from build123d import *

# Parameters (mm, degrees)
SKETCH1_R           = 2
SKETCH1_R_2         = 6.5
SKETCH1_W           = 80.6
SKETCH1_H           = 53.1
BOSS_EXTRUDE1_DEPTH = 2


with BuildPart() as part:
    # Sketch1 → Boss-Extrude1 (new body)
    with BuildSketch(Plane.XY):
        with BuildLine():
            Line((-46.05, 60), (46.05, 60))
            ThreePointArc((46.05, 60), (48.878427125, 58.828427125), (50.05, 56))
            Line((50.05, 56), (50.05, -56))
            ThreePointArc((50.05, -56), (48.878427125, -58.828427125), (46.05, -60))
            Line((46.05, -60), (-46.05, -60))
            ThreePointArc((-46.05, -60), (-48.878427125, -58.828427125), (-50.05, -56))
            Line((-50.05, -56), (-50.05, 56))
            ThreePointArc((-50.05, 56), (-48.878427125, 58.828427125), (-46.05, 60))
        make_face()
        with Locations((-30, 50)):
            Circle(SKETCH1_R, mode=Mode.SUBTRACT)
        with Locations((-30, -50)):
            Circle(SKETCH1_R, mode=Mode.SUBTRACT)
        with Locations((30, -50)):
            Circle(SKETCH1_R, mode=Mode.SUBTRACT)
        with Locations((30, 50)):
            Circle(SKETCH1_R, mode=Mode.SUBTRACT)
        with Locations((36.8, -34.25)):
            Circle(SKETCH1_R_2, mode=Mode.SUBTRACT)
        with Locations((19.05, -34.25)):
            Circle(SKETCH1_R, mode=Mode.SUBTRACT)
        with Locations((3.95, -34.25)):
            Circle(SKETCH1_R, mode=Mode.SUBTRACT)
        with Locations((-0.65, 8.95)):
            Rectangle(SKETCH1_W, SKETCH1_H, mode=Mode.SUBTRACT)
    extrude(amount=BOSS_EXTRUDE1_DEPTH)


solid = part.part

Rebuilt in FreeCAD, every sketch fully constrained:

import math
import FreeCAD as App
import Part
import Sketcher

V = App.Vector


def add_polygon(sketch, points):
    """Adds a closed chain of lines whose ends are joined by coincident constraints."""
    first, n = sketch.GeometryCount, len(points)
    for a, b in zip(points, points[1:] + points[:1]):
        sketch.addGeometry(Part.LineSegment(App.Vector(*a, 0), App.Vector(*b, 0)), False)
    for i in range(n):
        sketch.addConstraint(Sketcher.Constraint("Coincident", first + i, 2, first + (i + 1) % n, 1))

doc = App.newDocument("Part")
body = doc.addObject("PartDesign::Body", "Body")

sketch1 = doc.addObject("Sketcher::SketchObject", "Sketch")
body.addObject(sketch1)
sketch1.AttachmentSupport = (doc.XY_Plane, [""])
sketch1.MapMode = "FlatFace"
sketch1.addGeometry(Part.LineSegment(V(46.05, 60, 0), V(-46.05, 60, 0)), False)
sketch1.addGeometry(Part.ArcOfCircle(Part.Circle(V(-46.05, 56, 0), V(0, 0, 1), 4), math.radians(90), math.radians(180)), False)
sketch1.addGeometry(Part.LineSegment(V(-50.05, 56, 0), V(-50.05, -56, 0)), False)
sketch1.addGeometry(Part.ArcOfCircle(Part.Circle(V(-46.05, -56, 0), V(0, 0, 1), 4), math.radians(180), math.radians(270)), False)
sketch1.addGeometry(Part.LineSegment(V(-46.05, -60, 0), V(46.05, -60, 0)), False)
sketch1.addGeometry(Part.ArcOfCircle(Part.Circle(V(46.05, -56, 0), V(0, 0, 1), 4), math.radians(-90), math.radians(0)), False)
sketch1.addGeometry(Part.LineSegment(V(50.05, -56, 0), V(50.05, 56, 0)), False)
sketch1.addGeometry(Part.ArcOfCircle(Part.Circle(V(46.05, 56, 0), V(0, 0, 1), 4), math.radians(0), math.radians(90)), False)
sketch1.addGeometry(Part.Circle(V(30, -50, 0), V(0, 0, 1), 2), False)
sketch1.addGeometry(Part.Circle(V(36.8, -34.25, 0), V(0, 0, 1), 6.5), False)
sketch1.addGeometry(Part.Circle(V(19.05, -34.25, 0), V(0, 0, 1), 2), False)
sketch1.addGeometry(Part.Circle(V(3.95, -34.25, 0), V(0, 0, 1), 2), False)
sketch1.addGeometry(Part.Circle(V(-30, -50, 0), V(0, 0, 1), 2), False)
sketch1.addGeometry(Part.Circle(V(30, 50, 0), V(0, 0, 1), 2), False)
add_polygon(sketch1, [(-40.95, -17.6), (-40.95, 35.5), (39.65, 35.5), (39.65, -17.6)])
sketch1.addGeometry(Part.Circle(V(-30, 50, 0), V(0, 0, 1), 2), False)
sketch1.addConstraint([
    Sketcher.Constraint("Tangent", 0, 2, 1, 1),
    Sketcher.Constraint("Tangent", 1, 2, 2, 1),
    Sketcher.Constraint("Tangent", 2, 2, 3, 1),
    Sketcher.Constraint("Tangent", 3, 2, 4, 1),
    Sketcher.Constraint("Tangent", 4, 2, 5, 1),
    Sketcher.Constraint("Tangent", 5, 2, 6, 1),
    Sketcher.Constraint("Tangent", 6, 2, 7, 1),
    Sketcher.Constraint("Tangent", 7, 2, 0, 1),
    Sketcher.Constraint("Horizontal", 0),
    Sketcher.Constraint("Vertical", 2),
    Sketcher.Constraint("Horizontal", 4),
    Sketcher.Constraint("Vertical", 6),
    Sketcher.Constraint("Vertical", 14),
    Sketcher.Constraint("Horizontal", 15),
    Sketcher.Constraint("Vertical", 16),
    Sketcher.Constraint("Horizontal", 17),
    Sketcher.Constraint("Equal", 1, 3),
    Sketcher.Constraint("Equal", 3, 5),
    Sketcher.Constraint("Equal", 5, 7),
    Sketcher.Constraint("Equal", 8, 10),
    Sketcher.Constraint("Equal", 10, 11),
    Sketcher.Constraint("Equal", 11, 12),
    Sketcher.Constraint("Equal", 12, 13),
    Sketcher.Constraint("Equal", 13, 18),
    Sketcher.Constraint("Symmetric", 1, 3, 5, 3, -1, 1),
    Sketcher.Constraint("Symmetric", 12, 3, 13, 3, -1, 1),
    Sketcher.Constraint("Symmetric", 8, 3, 18, 3, -1, 1),
    Sketcher.Constraint("Symmetric", 8, 3, 12, 3, -2),
    Sketcher.Constraint("Horizontal", 9, 3, 10, 3),
    Sketcher.Constraint("Horizontal", 10, 3, 11, 3),
    Sketcher.Constraint("Diameter", 8, 4.0),
    Sketcher.Constraint("Diameter", 9, 13.0),
    Sketcher.Constraint("Radius", 1, 4.0),
    Sketcher.Constraint("DistanceY", 2, 2, 2, 1, 112.0),
    Sketcher.Constraint("DistanceX", 0, 2, 0, 1, 92.1),
    Sketcher.Constraint("DistanceX", 15, 1, 15, 2, 80.6),
    Sketcher.Constraint("DistanceY", 14, 1, 14, 2, 53.1),
    Sketcher.Constraint("DistanceX", -1, 1, 8, 3, 30.0),
    Sketcher.Constraint("DistanceY", 8, 3, -1, 1, 50.0),
    Sketcher.Constraint("DistanceX", 10, 3, 5, 3, 27.0),
    Sketcher.Constraint("DistanceX", 3, 3, 11, 3, 50.0),
    Sketcher.Constraint("DistanceX", -1, 1, 9, 3, 36.8),
    Sketcher.Constraint("DistanceY", -1, 1, 14, 2, 35.5),
    Sketcher.Constraint("DistanceX", 1, 3, 14, 2, 5.1),
    Sketcher.Constraint("DistanceY", 9, 3, -1, 1, 34.25),
])
pad1 = doc.addObject("PartDesign::Pad", "Pad")
body.addObject(pad1)
pad1.Profile = sketch1
pad1.Length = 2

doc.recompute()
